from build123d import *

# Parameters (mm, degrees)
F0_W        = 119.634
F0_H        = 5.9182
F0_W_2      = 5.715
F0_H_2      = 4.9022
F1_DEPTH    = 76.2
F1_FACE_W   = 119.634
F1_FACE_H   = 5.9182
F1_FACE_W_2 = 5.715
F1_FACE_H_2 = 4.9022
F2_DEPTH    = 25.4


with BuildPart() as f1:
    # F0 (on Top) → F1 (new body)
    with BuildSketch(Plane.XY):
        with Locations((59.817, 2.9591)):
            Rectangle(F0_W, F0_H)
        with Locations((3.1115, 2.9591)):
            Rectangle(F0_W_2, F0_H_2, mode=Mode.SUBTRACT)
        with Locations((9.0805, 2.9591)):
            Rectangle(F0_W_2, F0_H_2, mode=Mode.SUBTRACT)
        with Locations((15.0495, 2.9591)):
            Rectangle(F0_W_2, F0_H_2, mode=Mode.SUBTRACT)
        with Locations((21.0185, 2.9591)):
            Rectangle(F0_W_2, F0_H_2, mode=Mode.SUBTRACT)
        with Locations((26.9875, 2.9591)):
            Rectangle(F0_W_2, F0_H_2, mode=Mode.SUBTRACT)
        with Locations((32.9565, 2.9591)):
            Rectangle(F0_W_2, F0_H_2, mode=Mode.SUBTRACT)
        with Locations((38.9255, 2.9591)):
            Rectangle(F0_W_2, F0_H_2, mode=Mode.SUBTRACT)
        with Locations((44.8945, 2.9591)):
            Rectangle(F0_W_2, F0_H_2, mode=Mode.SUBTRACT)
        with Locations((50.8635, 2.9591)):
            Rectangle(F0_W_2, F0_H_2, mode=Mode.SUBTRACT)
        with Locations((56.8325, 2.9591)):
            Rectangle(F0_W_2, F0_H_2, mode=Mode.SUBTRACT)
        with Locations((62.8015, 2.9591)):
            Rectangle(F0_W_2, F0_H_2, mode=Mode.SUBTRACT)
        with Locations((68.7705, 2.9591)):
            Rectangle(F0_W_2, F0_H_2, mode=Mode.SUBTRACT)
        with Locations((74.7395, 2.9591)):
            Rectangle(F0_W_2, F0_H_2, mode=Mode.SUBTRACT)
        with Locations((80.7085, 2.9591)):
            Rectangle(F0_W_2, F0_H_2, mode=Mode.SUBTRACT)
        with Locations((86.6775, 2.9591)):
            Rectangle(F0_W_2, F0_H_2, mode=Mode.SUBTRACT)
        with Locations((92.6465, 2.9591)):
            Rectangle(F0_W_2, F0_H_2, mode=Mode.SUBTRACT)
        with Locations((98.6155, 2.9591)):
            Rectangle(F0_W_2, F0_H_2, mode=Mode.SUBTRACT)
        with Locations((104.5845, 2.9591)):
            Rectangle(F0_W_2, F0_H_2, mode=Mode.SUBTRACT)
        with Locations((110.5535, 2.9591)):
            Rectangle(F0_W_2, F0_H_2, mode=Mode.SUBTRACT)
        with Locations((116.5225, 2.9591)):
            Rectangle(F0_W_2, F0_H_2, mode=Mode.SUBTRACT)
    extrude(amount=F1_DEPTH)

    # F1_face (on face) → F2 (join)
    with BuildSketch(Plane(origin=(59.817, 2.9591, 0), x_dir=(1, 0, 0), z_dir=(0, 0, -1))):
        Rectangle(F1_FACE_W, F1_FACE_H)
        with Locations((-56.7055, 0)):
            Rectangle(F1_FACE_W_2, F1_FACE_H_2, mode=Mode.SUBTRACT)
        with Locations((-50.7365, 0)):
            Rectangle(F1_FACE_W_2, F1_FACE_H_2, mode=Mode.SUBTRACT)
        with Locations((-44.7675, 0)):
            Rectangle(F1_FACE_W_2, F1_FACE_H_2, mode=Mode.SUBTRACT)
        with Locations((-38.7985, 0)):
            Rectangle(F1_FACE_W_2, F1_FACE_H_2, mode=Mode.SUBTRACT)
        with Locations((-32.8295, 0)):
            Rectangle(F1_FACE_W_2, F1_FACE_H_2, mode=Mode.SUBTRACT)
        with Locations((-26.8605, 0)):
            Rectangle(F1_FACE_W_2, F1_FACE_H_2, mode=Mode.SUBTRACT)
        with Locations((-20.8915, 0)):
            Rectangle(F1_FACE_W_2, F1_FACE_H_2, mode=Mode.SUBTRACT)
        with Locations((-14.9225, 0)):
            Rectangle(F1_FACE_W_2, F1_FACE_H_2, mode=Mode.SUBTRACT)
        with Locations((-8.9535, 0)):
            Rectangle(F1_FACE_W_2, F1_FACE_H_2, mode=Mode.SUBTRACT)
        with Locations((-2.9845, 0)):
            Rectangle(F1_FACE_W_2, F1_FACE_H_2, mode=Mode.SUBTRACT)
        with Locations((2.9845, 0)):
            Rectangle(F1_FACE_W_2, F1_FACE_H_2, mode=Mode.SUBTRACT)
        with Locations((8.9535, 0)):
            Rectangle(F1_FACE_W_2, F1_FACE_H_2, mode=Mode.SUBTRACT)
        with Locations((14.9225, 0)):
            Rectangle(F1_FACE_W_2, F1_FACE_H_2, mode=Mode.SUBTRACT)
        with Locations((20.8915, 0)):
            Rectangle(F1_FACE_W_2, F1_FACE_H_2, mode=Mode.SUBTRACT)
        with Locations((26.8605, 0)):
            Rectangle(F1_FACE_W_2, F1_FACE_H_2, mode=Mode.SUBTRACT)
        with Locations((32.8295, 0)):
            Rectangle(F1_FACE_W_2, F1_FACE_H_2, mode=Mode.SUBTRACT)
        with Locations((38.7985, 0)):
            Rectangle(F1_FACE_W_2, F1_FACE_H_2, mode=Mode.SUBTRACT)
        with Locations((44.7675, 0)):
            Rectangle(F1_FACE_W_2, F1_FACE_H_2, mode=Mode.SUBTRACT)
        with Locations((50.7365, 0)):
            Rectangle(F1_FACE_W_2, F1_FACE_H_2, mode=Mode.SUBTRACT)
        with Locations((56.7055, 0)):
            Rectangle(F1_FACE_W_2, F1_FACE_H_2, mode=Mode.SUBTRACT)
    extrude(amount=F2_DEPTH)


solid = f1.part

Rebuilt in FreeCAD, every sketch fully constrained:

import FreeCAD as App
import Part
import Sketcher
Q = App.Units.Quantity

doc = App.newDocument("Part")
body = doc.addObject("PartDesign::Body", "Body")

sketch1 = body.newObject("Sketcher::SketchObject", "Sketch")
sketch1.AttachmentSupport = (doc.getObject("XY_Plane"), [""])
sketch1.MapMode = "FlatFace"
sketch1.addGeometry([
    Part.LineSegment(App.Vector(0, 5.9, 0), App.Vector(0, 0, 0)),
    Part.LineSegment(App.Vector(0, 0, 0), App.Vector(119.6, 0, 0)),
    Part.LineSegment(App.Vector(119.6, 0, 0), App.Vector(119.6, 5.9, 0)),
    Part.LineSegment(App.Vector(119.6, 5.9, 0), App.Vector(0, 5.9, 0)),
    Part.LineSegment(App.Vector(6, 0.5, 0), App.Vector(0.3, 0.5, 0)),
    Part.LineSegment(App.Vector(0.3, 0.5, 0), App.Vector(0.3, 5.4, 0)),
    Part.LineSegment(App.Vector(0.3, 5.4, 0), App.Vector(6, 5.4, 0)),
    Part.LineSegment(App.Vector(6, 5.4, 0), App.Vector(6, 0.5, 0)),
    Part.LineSegment(App.Vector(11.9, 0.5, 0), App.Vector(6.2, 0.5, 0)),
    Part.LineSegment(App.Vector(6.2, 0.5, 0), App.Vector(6.2, 5.4, 0)),
    Part.LineSegment(App.Vector(6.2, 5.4, 0), App.Vector(11.9, 5.4, 0)),
    Part.LineSegment(App.Vector(11.9, 5.4, 0), App.Vector(11.9, 0.5, 0)),
    Part.LineSegment(App.Vector(17.9, 0.5, 0), App.Vector(12.2, 0.5, 0)),
    Part.LineSegment(App.Vector(12.2, 0.5, 0), App.Vector(12.2, 5.4, 0)),
    Part.LineSegment(App.Vector(12.2, 5.4, 0), App.Vector(17.9, 5.4, 0)),
    Part.LineSegment(App.Vector(17.9, 5.4, 0), App.Vector(17.9, 0.5, 0)),
    Part.LineSegment(App.Vector(23.9, 0.5, 0), App.Vector(18.2, 0.5, 0)),
    Part.LineSegment(App.Vector(18.2, 0.5, 0), App.Vector(18.2, 5.4, 0)),
    Part.LineSegment(App.Vector(18.2, 5.4, 0), App.Vector(23.9, 5.4, 0)),
    Part.LineSegment(App.Vector(23.9, 5.4, 0), App.Vector(23.9, 0.5, 0)),
    Part.LineSegment(App.Vector(29.8, 0.5, 0), App.Vector(24.1, 0.5, 0)),
    Part.LineSegment(App.Vector(24.1, 0.5, 0), App.Vector(24.1, 5.4, 0)),
    Part.LineSegment(App.Vector(24.1, 5.4, 0), App.Vector(29.8, 5.4, 0)),
    Part.LineSegment(App.Vector(29.8, 5.4, 0), App.Vector(29.8, 0.5, 0)),
    Part.LineSegment(App.Vector(35.8, 0.5, 0), App.Vector(30.1, 0.5, 0)),
    Part.LineSegment(App.Vector(30.1, 0.5, 0), App.Vector(30.1, 5.4, 0)),
    Part.LineSegment(App.Vector(30.1, 5.4, 0), App.Vector(35.8, 5.4, 0)),
    Part.LineSegment(App.Vector(35.8, 5.4, 0), App.Vector(35.8, 0.5, 0)),
    Part.LineSegment(App.Vector(41.8, 0.5, 0), App.Vector(36.1, 0.5, 0)),
    Part.LineSegment(App.Vector(36.1, 0.5, 0), App.Vector(36.1, 5.4, 0)),
    Part.LineSegment(App.Vector(36.1, 5.4, 0), App.Vector(41.8, 5.4, 0)),
    Part.LineSegment(App.Vector(41.8, 5.4, 0), App.Vector(41.8, 0.5, 0)),
    Part.LineSegment(App.Vector(47.8, 0.5, 0), App.Vector(42, 0.5, 0)),
    Part.LineSegment(App.Vector(42, 0.5, 0), App.Vector(42, 5.4, 0)),
    Part.LineSegment(App.Vector(42, 5.4, 0), App.Vector(47.8, 5.4, 0)),
    Part.LineSegment(App.Vector(47.8, 5.4, 0), App.Vector(47.8, 0.5, 0)),
    Part.LineSegment(App.Vector(53.7, 0.5, 0), App.Vector(48, 0.5, 0)),
    Part.LineSegment(App.Vector(48, 0.5, 0), App.Vector(48, 5.4, 0)),
    Part.LineSegment(App.Vector(48, 5.4, 0), App.Vector(53.7, 5.4, 0)),
    Part.LineSegment(App.Vector(53.7, 5.4, 0), App.Vector(53.7, 0.5, 0)),
    Part.LineSegment(App.Vector(59.7, 0.5, 0), App.Vector(54, 0.5, 0)),
    Part.LineSegment(App.Vector(54, 0.5, 0), App.Vector(54, 5.4, 0)),
    Part.LineSegment(App.Vector(54, 5.4, 0), App.Vector(59.7, 5.4, 0)),
    Part.LineSegment(App.Vector(59.7, 5.4, 0), App.Vector(59.7, 0.5, 0)),
    Part.LineSegment(App.Vector(65.7, 0.5, 0), App.Vector(59.9, 0.5, 0)),
    Part.LineSegment(App.Vector(59.9, 0.5, 0), App.Vector(59.9, 5.4, 0)),
    Part.LineSegment(App.Vector(59.9, 5.4, 0), App.Vector(65.7, 5.4, 0)),
    Part.LineSegment(App.Vector(65.7, 5.4, 0), App.Vector(65.7, 0.5, 0)),
    Part.LineSegment(App.Vector(71.6, 0.5, 0), App.Vector(65.9, 0.5, 0)),
    Part.LineSegment(App.Vector(65.9, 0.5, 0), App.Vector(65.9, 5.4, 0)),
    Part.LineSegment(App.Vector(65.9, 5.4, 0), App.Vector(71.6, 5.4, 0)),
    Part.LineSegment(App.Vector(71.6, 5.4, 0), App.Vector(71.6, 0.5, 0)),
    Part.LineSegment(App.Vector(77.6, 0.5, 0), App.Vector(71.9, 0.5, 0)),
    Part.LineSegment(App.Vector(71.9, 0.5, 0), App.Vector(71.9, 5.4, 0)),
    Part.LineSegment(App.Vector(71.9, 5.4, 0), App.Vector(77.6, 5.4, 0)),
    Part.LineSegment(App.Vector(77.6, 5.4, 0), App.Vector(77.6, 0.5, 0)),
    Part.LineSegment(App.Vector(83.6, 0.5, 0), App.Vector(77.9, 0.5, 0)),
    Part.LineSegment(App.Vector(77.9, 0.5, 0), App.Vector(77.9, 5.4, 0)),
    Part.LineSegment(App.Vector(77.9, 5.4, 0), App.Vector(83.6, 5.4, 0)),
    Part.LineSegment(App.Vector(83.6, 5.4, 0), App.Vector(83.6, 0.5, 0)),
    Part.LineSegment(App.Vector(89.5, 0.5, 0), App.Vector(83.8, 0.5, 0)),
    Part.LineSegment(App.Vector(83.8, 0.5, 0), App.Vector(83.8, 5.4, 0)),
    Part.LineSegment(App.Vector(83.8, 5.4, 0), App.Vector(89.5, 5.4, 0)),
    Part.LineSegment(App.Vector(89.5, 5.4, 0), App.Vector(89.5, 0.5, 0)),
    Part.LineSegment(App.Vector(95.5, 0.5, 0), App.Vector(89.8, 0.5, 0)),
    Part.LineSegment(App.Vector(89.8, 0.5, 0), App.Vector(89.8, 5.4, 0)),
    Part.LineSegment(App.Vector(89.8, 5.4, 0), App.Vector(95.5, 5.4, 0)),
    Part.LineSegment(App.Vector(95.5, 5.4, 0), App.Vector(95.5, 0.5, 0)),
    Part.LineSegment(App.Vector(101.5, 0.5, 0), App.Vector(95.8, 0.5, 0)),
    Part.LineSegment(App.Vector(95.8, 0.5, 0), App.Vector(95.8, 5.4, 0)),
    Part.LineSegment(App.Vector(95.8, 5.4, 0), App.Vector(101.5, 5.4, 0)),
    Part.LineSegment(App.Vector(101.5, 5.4, 0), App.Vector(101.5, 0.5, 0)),
    Part.LineSegment(App.Vector(107.4, 0.5, 0), App.Vector(101.7, 0.5, 0)),
    Part.LineSegment(App.Vector(101.7, 0.5, 0), App.Vector(101.7, 5.4, 0)),
    Part.LineSegment(App.Vector(101.7, 5.4, 0), App.Vector(107.4, 5.4, 0)),
    Part.LineSegment(App.Vector(107.4, 5.4, 0), App.Vector(107.4, 0.5, 0)),
    Part.LineSegment(App.Vector(113.4, 0.5, 0), App.Vector(107.7, 0.5, 0)),
    Part.LineSegment(App.Vector(107.7, 0.5, 0), App.Vector(107.7, 5.4, 0)),
    Part.LineSegment(App.Vector(107.7, 5.4, 0), App.Vector(113.4, 5.4, 0)),
    Part.LineSegment(App.Vector(113.4, 5.4, 0), App.Vector(113.4, 0.5, 0)),
    Part.LineSegment(App.Vector(119.4, 0.5, 0), App.Vector(113.7, 0.5, 0)),
    Part.LineSegment(App.Vector(113.7, 0.5, 0), App.Vector(113.7, 5.4, 0)),
    Part.LineSegment(App.Vector(113.7, 5.4, 0), App.Vector(119.4, 5.4, 0)),
    Part.LineSegment(App.Vector(119.4, 5.4, 0), App.Vector(119.4, 0.5, 0)),
], False)
sketch1.addConstraint([
    Sketcher.Constraint("Coincident", 0, 2, 1, 1),
    Sketcher.Constraint("Coincident", 1, 2, 2, 1),
    Sketcher.Constraint("Coincident", 2, 2, 3, 1),
    Sketcher.Constraint("Coincident", 3, 2, 0, 1),
    Sketcher.Constraint("Coincident", 4, 2, 5, 1),
    Sketcher.Constraint("Coincident", 5, 2, 6, 1),
    Sketcher.Constraint("Coincident", 6, 2, 7, 1),
    Sketcher.Constraint("Coincident", 7, 2, 4, 1),
    Sketcher.Constraint("Coincident", 8, 2, 9, 1),
    Sketcher.Constraint("Coincident", 9, 2, 10, 1),
    Sketcher.Constraint("Coincident", 10, 2, 11, 1),
    Sketcher.Constraint("Coincident", 11, 2, 8, 1),
    Sketcher.Constraint("Coincident", 12, 2, 13, 1),
    Sketcher.Constraint("Coincident", 13, 2, 14, 1),
    Sketcher.Constraint("Coincident", 14, 2, 15, 1),
    Sketcher.Constraint("Coincident", 15, 2, 12, 1),
    Sketcher.Constraint("Coincident", 16, 2, 17, 1),
    Sketcher.Constraint("Coincident", 17, 2, 18, 1),
    Sketcher.Constraint("Coincident", 18, 2, 19, 1),
    Sketcher.Constraint("Coincident", 19, 2, 16, 1),
    Sketcher.Constraint("Coincident", 20, 2, 21, 1),
    Sketcher.Constraint("Coincident", 21, 2, 22, 1),
    Sketcher.Constraint("Coincident", 22, 2, 23, 1),
    Sketcher.Constraint("Coincident", 23, 2, 20, 1),
    Sketcher.Constraint("Coincident", 24, 2, 25, 1),
    Sketcher.Constraint("Coincident", 25, 2, 26, 1),
    Sketcher.Constraint("Coincident", 26, 2, 27, 1),
    Sketcher.Constraint("Coincident", 27, 2, 24, 1),
    Sketcher.Constraint("Coincident", 28, 2, 29, 1),
    Sketcher.Constraint("Coincident", 29, 2, 30, 1),
    Sketcher.Constraint("Coincident", 30, 2, 31, 1),
    Sketcher.Constraint("Coincident", 31, 2, 28, 1),
    Sketcher.Constraint("Coincident", 32, 2, 33, 1),
    Sketcher.Constraint("Coincident", 33, 2, 34, 1),
    Sketcher.Constraint("Coincident", 34, 2, 35, 1),
    Sketcher.Constraint("Coincident", 35, 2, 32, 1),
    Sketcher.Constraint("Coincident", 36, 2, 37, 1),
    Sketcher.Constraint("Coincident", 37, 2, 38, 1),
    Sketcher.Constraint("Coincident", 38, 2, 39, 1),
    Sketcher.Constraint("Coincident", 39, 2, 36, 1),
    Sketcher.Constraint("Coincident", 40, 2, 41, 1),
    Sketcher.Constraint("Coincident", 41, 2, 42, 1),
    Sketcher.Constraint("Coincident", 42, 2, 43, 1),
    Sketcher.Constraint("Coincident", 43, 2, 40, 1),
    Sketcher.Constraint("Coincident", 44, 2, 45, 1),
    Sketcher.Constraint("Coincident", 45, 2, 46, 1),
    Sketcher.Constraint("Coincident", 46, 2, 47, 1),
    Sketcher.Constraint("Coincident", 47, 2, 44, 1),
    Sketcher.Constraint("Coincident", 48, 2, 49, 1),
    Sketcher.Constraint("Coincident", 49, 2, 50, 1),
    Sketcher.Constraint("Coincident", 50, 2, 51, 1),
    Sketcher.Constraint("Coincident", 51, 2, 48, 1),
    Sketcher.Constraint("Coincident", 52, 2, 53, 1),
    Sketcher.Constraint("Coincident", 53, 2, 54, 1),
    Sketcher.Constraint("Coincident", 54, 2, 55, 1),
    Sketcher.Constraint("Coincident", 55, 2, 52, 1),
    Sketcher.Constraint("Coincident", 56, 2, 57, 1),
    Sketcher.Constraint("Coincident", 57, 2, 58, 1),
    Sketcher.Constraint("Coincident", 58, 2, 59, 1),
    Sketcher.Constraint("Coincident", 59, 2, 56, 1),
    Sketcher.Constraint("Coincident", 60, 2, 61, 1),
    Sketcher.Constraint("Coincident", 61, 2, 62, 1),
    Sketcher.Constraint("Coincident", 62, 2, 63, 1),
    Sketcher.Constraint("Coincident", 63, 2, 60, 1),
    Sketcher.Constraint("Coincident", 64, 2, 65, 1),
    Sketcher.Constraint("Coincident", 65, 2, 66, 1),
    Sketcher.Constraint("Coincident", 66, 2, 67, 1),
    Sketcher.Constraint("Coincident", 67, 2, 64, 1),
    Sketcher.Constraint("Coincident", 68, 2, 69, 1),
    Sketcher.Constraint("Coincident", 69, 2, 70, 1),
    Sketcher.Constraint("Coincident", 70, 2, 71, 1),
    Sketcher.Constraint("Coincident", 71, 2, 68, 1),
    Sketcher.Constraint("Coincident", 72, 2, 73, 1),
    Sketcher.Constraint("Coincident", 73, 2, 74, 1),
    Sketcher.Constraint("Coincident", 74, 2, 75, 1),
    Sketcher.Constraint("Coincident", 75, 2, 72, 1),
    Sketcher.Constraint("Coincident", 76, 2, 77, 1),
    Sketcher.Constraint("Coincident", 77, 2, 78, 1),
    Sketcher.Constraint("Coincident", 78, 2, 79, 1),
    Sketcher.Constraint("Coincident", 79, 2, 76, 1),
    Sketcher.Constraint("Coincident", 80, 2, 81, 1),
    Sketcher.Constraint("Coincident", 81, 2, 82, 1),
    Sketcher.Constraint("Coincident", 82, 2, 83, 1),
    Sketcher.Constraint("Coincident", 83, 2, 80, 1),
    Sketcher.Constraint("Vertical", 0),
    Sketcher.Constraint("Horizontal", 1),
    Sketcher.Constraint("Vertical", 2),
    Sketcher.Constraint("Horizontal", 3),
    Sketcher.Constraint("Horizontal", 4),
    Sketcher.Constraint("Vertical", 5),
    Sketcher.Constraint("Horizontal", 6),
    Sketcher.Constraint("Vertical", 7),
    Sketcher.Constraint("Horizontal", 8),
    Sketcher.Constraint("Vertical", 9),
    Sketcher.Constraint("Horizontal", 10),
    Sketcher.Constraint("Vertical", 11),
    Sketcher.Constraint("Horizontal", 12),
    Sketcher.Constraint("Vertical", 13),
    Sketcher.Constraint("Horizontal", 14),
    Sketcher.Constraint("Vertical", 15),
    Sketcher.Constraint("Horizontal", 16),
    Sketcher.Constraint("Vertical", 17),
    Sketcher.Constraint("Horizontal", 18),
    Sketcher.Constraint("Vertical", 19),
    Sketcher.Constraint("Horizontal", 20),
    Sketcher.Constraint("Vertical", 21),
    Sketcher.Constraint("Horizontal", 22),
    Sketcher.Constraint("Vertical", 23),
    Sketcher.Constraint("Horizontal", 24),
    Sketcher.Constraint("Vertical", 25),
    Sketcher.Constraint("Horizontal", 26),
    Sketcher.Constraint("Vertical", 27),
    Sketcher.Constraint("Horizontal", 28),
    Sketcher.Constraint("Vertical", 29),
    Sketcher.Constraint("Horizontal", 30),
    Sketcher.Constraint("Vertical", 31),
    Sketcher.Constraint("Horizontal", 32),
    Sketcher.Constraint("Vertical", 33),
    Sketcher.Constraint("Horizontal", 34),
    Sketcher.Constraint("Vertical", 35),
    Sketcher.Constraint("Horizontal", 36),
    Sketcher.Constraint("Vertical", 37),
    Sketcher.Constraint("Horizontal", 38),
    Sketcher.Constraint("Vertical", 39),
    Sketcher.Constraint("Horizontal", 40),
    Sketcher.Constraint("Vertical", 41),
    Sketcher.Constraint("Horizontal", 42),
    Sketcher.Constraint("Vertical", 43),
    Sketcher.Constraint("Horizontal", 44),
    Sketcher.Constraint("Vertical", 45),
    Sketcher.Constraint("Horizontal", 46),
    Sketcher.Constraint("Vertical", 47),
    Sketcher.Constraint("Horizontal", 48),
    Sketcher.Constraint("Vertical", 49),
    Sketcher.Constraint("Horizontal", 50),
    Sketcher.Constraint("Vertical", 51),
    Sketcher.Constraint("Horizontal", 52),
    Sketcher.Constraint("Vertical", 53),
    Sketcher.Constraint("Horizontal", 54),
    Sketcher.Constraint("Vertical", 55),
    Sketcher.Constraint("Horizontal", 56),
    Sketcher.Constraint("Vertical", 57),
    Sketcher.Constraint("Horizontal", 58),
    Sketcher.Constraint("Vertical", 59),
    Sketcher.Constraint("Horizontal", 60),
    Sketcher.Constraint("Vertical", 61),
    Sketcher.Constraint("Horizontal", 62),
    Sketcher.Constraint("Vertical", 63),
    Sketcher.Constraint("Horizontal", 64),
    Sketcher.Constraint("Vertical", 65),
    Sketcher.Constraint("Horizontal", 66),
    Sketcher.Constraint("Vertical", 67),
    Sketcher.Constraint("Horizontal", 68),
    Sketcher.Constraint("Vertical", 69),
    Sketcher.Constraint("Horizontal", 70),
    Sketcher.Constraint("Vertical", 71),
    Sketcher.Constraint("Horizontal", 72),
    Sketcher.Constraint("Vertical", 73),
    Sketcher.Constraint("Horizontal", 74),
    Sketcher.Constraint("Vertical", 75),
    Sketcher.Constraint("Horizontal", 76),
    Sketcher.Constraint("Vertical", 77),
    Sketcher.Constraint("Horizontal", 78),
    Sketcher.Constraint("Vertical", 79),
    Sketcher.Constraint("Horizontal", 80),
    Sketcher.Constraint("Vertical", 81),
    Sketcher.Constraint("Horizontal", 82),
    Sketcher.Constraint("Vertical", 83),
    Sketcher.Constraint("Coincident", 0, 2, -1, 1),
    Sketcher.Constraint("Horizontal", 7, 2, 8, 2),
    Sketcher.Constraint("Horizontal", 6, 2, 9, 2),
    Sketcher.Constraint("Horizontal", 11, 2, 12, 2),
    Sketcher.Constraint("Horizontal", 10, 2, 13, 2),
    Sketcher.Constraint("Horizontal", 15, 2, 16, 2),
    Sketcher.Constraint("Horizontal", 14, 2, 17, 2),
    Sketcher.Constraint("Horizontal", 19, 2, 20, 2),
    Sketcher.Constraint("Horizontal", 18, 2, 21, 2),
    Sketcher.Constraint("Horizontal", 23, 2, 24, 2),
    Sketcher.Constraint("Horizontal", 22, 2, 25, 2),
    Sketcher.Constraint("Horizontal", 27, 2, 28, 2),
    Sketcher.Constraint("Horizontal", 26, 2, 29, 2),
    Sketcher.Constraint("Horizontal", 31, 2, 32, 2),
    Sketcher.Constraint("Horizontal", 30, 2, 33, 2),
    Sketcher.Constraint("Horizontal", 35, 2, 36, 2),
    Sketcher.Constraint("Horizontal", 34, 2, 37, 2),
    Sketcher.Constraint("Horizontal", 39, 2, 40, 2),
    Sketcher.Constraint("Horizontal", 38, 2, 41, 2),
    Sketcher.Constraint("Horizontal", 43, 2, 44, 2),
    Sketcher.Constraint("Horizontal", 42, 2, 45, 2),
    Sketcher.Constraint("Horizontal", 47, 2, 48, 2),
    Sketcher.Constraint("Horizontal", 46, 2, 49, 2),
    Sketcher.Constraint("Horizontal", 51, 2, 52, 2),
    Sketcher.Constraint("Horizontal", 50, 2, 53, 2),
    Sketcher.Constraint("Horizontal", 55, 2, 56, 2),
    Sketcher.Constraint("Horizontal", 54, 2, 57, 2),
    Sketcher.Constraint("Horizontal", 59, 2, 60, 2),
    Sketcher.Constraint("Horizontal", 58, 2, 61, 2),
    Sketcher.Constraint("Horizontal", 63, 2, 64, 2),
    Sketcher.Constraint("Horizontal", 62, 2, 65, 2),
    Sketcher.Constraint("Horizontal", 67, 2, 68, 2),
    Sketcher.Constraint("Horizontal", 66, 2, 69, 2),
    Sketcher.Constraint("Horizontal", 71, 2, 72, 2),
    Sketcher.Constraint("Horizontal", 70, 2, 73, 2),
    Sketcher.Constraint("Horizontal", 75, 2, 76, 2),
    Sketcher.Constraint("Horizontal", 74, 2, 77, 2),
    Sketcher.Constraint("Horizontal", 79, 2, 80, 2),
    Sketcher.Constraint("Horizontal", 78, 2, 81, 2),
    Sketcher.Constraint("Equal", 6, 8),
    Sketcher.Constraint("Equal", 10, 12),
    Sketcher.Constraint("Equal", 14, 16),
    Sketcher.Constraint("Equal", 18, 20),
    Sketcher.Constraint("Equal", 22, 24),
    Sketcher.Constraint("Equal", 26, 28),
    Sketcher.Constraint("Equal", 30, 32),
    Sketcher.Constraint("Equal", 34, 36),
    Sketcher.Constraint("Equal", 38, 40),
    Sketcher.Constraint("Equal", 42, 44),
    Sketcher.Constraint("Equal", 46, 48),
    Sketcher.Constraint("Equal", 50, 52),
    Sketcher.Constraint("Equal", 54, 56),
    Sketcher.Constraint("Equal", 58, 60),
    Sketcher.Constraint("Equal", 62, 64),
    Sketcher.Constraint("Equal", 66, 68),
    Sketcher.Constraint("Equal", 70, 72),
    Sketcher.Constraint("Equal", 74, 76),
    Sketcher.Constraint("Equal", 78, 80),
    Sketcher.Constraint("DistanceX", 1, 1, 1, 2, Q("4.71 in")),
    Sketcher.Constraint("DistanceX", -1, 1, 60, 2, Q("3.3 in")),
    Sketcher.Constraint("DistanceX", -1, 1, 82, 2, Q("4.7 in")),
    Sketcher.Constraint("DistanceX", 4, 2, 4, 1, Q("0.225 in")),
    Sketcher.Constraint("DistanceY", 0, 2, 0, 1, Q("0.233 in")),
    Sketcher.Constraint("DistanceY", 5, 1, 5, 2, Q("0.193 in")),
    Sketcher.Constraint("DistanceX", -1, 1, 4, 2, Q("0.01 in")),
    Sketcher.Constraint("DistanceY", -1, 1, 4, 2, Q("0.02 in")),
    Sketcher.Constraint("DistanceX", -1, 1, 10, 2, Q("0.47 in")),
    Sketcher.Constraint("DistanceX", -1, 1, 12, 2, Q("0.48 in")),
    Sketcher.Constraint("DistanceX", -1, 1, 18, 2, Q("0.94 in")),
    Sketcher.Constraint("DistanceX", -1, 1, 20, 2, Q("0.95 in")),
    Sketcher.Constraint("DistanceX", -1, 1, 26, 2, Q("1.41 in")),
    Sketcher.Constraint("DistanceX", -1, 1, 28, 2, Q("1.42 in")),
    Sketcher.Constraint("DistanceX", -1, 1, 34, 2, Q("1.88 in")),
    Sketcher.Constraint("DistanceX", -1, 1, 36, 2, Q("1.89 in")),
    Sketcher.Constraint("DistanceX", -1, 1, 42, 2, Q("2.35 in")),
    Sketcher.Constraint("DistanceX", -1, 1, 44, 2, Q("2.36 in")),
    Sketcher.Constraint("DistanceX", -1, 1, 50, 2, Q("2.82 in")),
    Sketcher.Constraint("DistanceX", -1, 1, 52, 2, Q("2.83 in")),
    Sketcher.Constraint("DistanceX", -1, 1, 58, 2, Q("3.29 in")),
    Sketcher.Constraint("DistanceX", -1, 1, 66, 2, Q("3.76 in")),
    Sketcher.Constraint("DistanceX", -1, 1, 68, 2, Q("3.77 in")),
    Sketcher.Constraint("DistanceX", -1, 1, 74, 2, Q("4.23 in")),
    Sketcher.Constraint("DistanceX", -1, 1, 76, 2, Q("4.24 in")),
])
pad1 = body.newObject("PartDesign::Pad", "Pad")
pad1.Profile = sketch1
pad1.Length = Q("3 in")

sketch2 = body.newObject("Sketcher::SketchObject", "Sketch001")
sketch2.AttachmentSupport = (doc.getObject("XY_Plane"), [""])
sketch2.MapMode = "FlatFace"
sketch2.addGeometry([
    Part.LineSegment(App.Vector(0, 0, 0), App.Vector(0, 5.9, 0)),
    Part.LineSegment(App.Vector(0, 5.9, 0), App.Vector(119.6, 5.9, 0)),
    Part.LineSegment(App.Vector(119.6, 5.9, 0), App.Vector(119.6, 0, 0)),
    Part.LineSegment(App.Vector(119.6, 0, 0), App.Vector(0, 0, 0)),
    Part.LineSegment(App.Vector(6, 5.4, 0), App.Vector(0.3, 5.4, 0)),
    Part.LineSegment(App.Vector(0.3, 5.4, 0), App.Vector(0.3, 0.5, 0)),
    Part.LineSegment(App.Vector(0.3, 0.5, 0), App.Vector(6, 0.5, 0)),
    Part.LineSegment(App.Vector(6, 0.5, 0), App.Vector(6, 5.4, 0)),
    Part.LineSegment(App.Vector(11.9, 5.4, 0), App.Vector(6.2, 5.4, 0)),
    Part.LineSegment(App.Vector(6.2, 5.4, 0), App.Vector(6.2, 0.5, 0)),
    Part.LineSegment(App.Vector(6.2, 0.5, 0), App.Vector(11.9, 0.5, 0)),
    Part.LineSegment(App.Vector(11.9, 0.5, 0), App.Vector(11.9, 5.4, 0)),
    Part.LineSegment(App.Vector(17.9, 5.4, 0), App.Vector(12.2, 5.4, 0)),
    Part.LineSegment(App.Vector(12.2, 5.4, 0), App.Vector(12.2, 0.5, 0)),
    Part.LineSegment(App.Vector(12.2, 0.5, 0), App.Vector(17.9, 0.5, 0)),
    Part.LineSegment(App.Vector(17.9, 0.5, 0), App.Vector(17.9, 5.4, 0)),
    Part.LineSegment(App.Vector(23.9, 5.4, 0), App.Vector(18.2, 5.4, 0)),
    Part.LineSegment(App.Vector(18.2, 5.4, 0), App.Vector(18.2, 0.5, 0)),
    Part.LineSegment(App.Vector(18.2, 0.5, 0), App.Vector(23.9, 0.5, 0)),
    Part.LineSegment(App.Vector(23.9, 0.5, 0), App.Vector(23.9, 5.4, 0)),
    Part.LineSegment(App.Vector(29.8, 5.4, 0), App.Vector(24.1, 5.4, 0)),
    Part.LineSegment(App.Vector(24.1, 5.4, 0), App.Vector(24.1, 0.5, 0)),
    Part.LineSegment(App.Vector(24.1, 0.5, 0), App.Vector(29.8, 0.5, 0)),
    Part.LineSegment(App.Vector(29.8, 0.5, 0), App.Vector(29.8, 5.4, 0)),
    Part.LineSegment(App.Vector(35.8, 5.4, 0), App.Vector(30.1, 5.4, 0)),
    Part.LineSegment(App.Vector(30.1, 5.4, 0), App.Vector(30.1, 0.5, 0)),
    Part.LineSegment(App.Vector(30.1, 0.5, 0), App.Vector(35.8, 0.5, 0)),
    Part.LineSegment(App.Vector(35.8, 0.5, 0), App.Vector(35.8, 5.4, 0)),
    Part.LineSegment(App.Vector(41.8, 5.4, 0), App.Vector(36.1, 5.4, 0)),
    Part.LineSegment(App.Vector(36.1, 5.4, 0), App.Vector(36.1, 0.5, 0)),
    Part.LineSegment(App.Vector(36.1, 0.5, 0), App.Vector(41.8, 0.5, 0)),
    Part.LineSegment(App.Vector(41.8, 0.5, 0), App.Vector(41.8, 5.4, 0)),
    Part.LineSegment(App.Vector(47.8, 5.4, 0), App.Vector(42, 5.4, 0)),
    Part.LineSegment(App.Vector(42, 5.4, 0), App.Vector(42, 0.5, 0)),
    Part.LineSegment(App.Vector(42, 0.5, 0), App.Vector(47.8, 0.5, 0)),
    Part.LineSegment(App.Vector(47.8, 0.5, 0), App.Vector(47.8, 5.4, 0)),
    Part.LineSegment(App.Vector(53.7, 5.4, 0), App.Vector(48, 5.4, 0)),
    Part.LineSegment(App.Vector(48, 5.4, 0), App.Vector(48, 0.5, 0)),
    Part.LineSegment(App.Vector(48, 0.5, 0), App.Vector(53.7, 0.5, 0)),
    Part.LineSegment(App.Vector(53.7, 0.5, 0), App.Vector(53.7, 5.4, 0)),
    Part.LineSegment(App.Vector(59.7, 5.4, 0), App.Vector(54, 5.4, 0)),
    Part.LineSegment(App.Vector(54, 5.4, 0), App.Vector(54, 0.5, 0)),
    Part.LineSegment(App.Vector(54, 0.5, 0), App.Vector(59.7, 0.5, 0)),
    Part.LineSegment(App.Vector(59.7, 0.5, 0), App.Vector(59.7, 5.4, 0)),
    Part.LineSegment(App.Vector(65.7, 5.4, 0), App.Vector(59.9, 5.4, 0)),
    Part.LineSegment(App.Vector(59.9, 5.4, 0), App.Vector(59.9, 0.5, 0)),
    Part.LineSegment(App.Vector(59.9, 0.5, 0), App.Vector(65.7, 0.5, 0)),
    Part.LineSegment(App.Vector(65.7, 0.5, 0), App.Vector(65.7, 5.4, 0)),
    Part.LineSegment(App.Vector(71.6, 5.4, 0), App.Vector(65.9, 5.4, 0)),
    Part.LineSegment(App.Vector(65.9, 5.4, 0), App.Vector(65.9, 0.5, 0)),
    Part.LineSegment(App.Vector(65.9, 0.5, 0), App.Vector(71.6, 0.5, 0)),
    Part.LineSegment(App.Vector(71.6, 0.5, 0), App.Vector(71.6, 5.4, 0)),
    Part.LineSegment(App.Vector(77.6, 5.4, 0), App.Vector(71.9, 5.4, 0)),
    Part.LineSegment(App.Vector(71.9, 5.4, 0), App.Vector(71.9, 0.5, 0)),
    Part.LineSegment(App.Vector(71.9, 0.5, 0), App.Vector(77.6, 0.5, 0)),
    Part.LineSegment(App.Vector(77.6, 0.5, 0), App.Vector(77.6, 5.4, 0)),
    Part.LineSegment(App.Vector(83.6, 5.4, 0), App.Vector(77.9, 5.4, 0)),
    Part.LineSegment(App.Vector(77.9, 5.4, 0), App.Vector(77.9, 0.5, 0)),
    Part.LineSegment(App.Vector(77.9, 0.5, 0), App.Vector(83.6, 0.5, 0)),
    Part.LineSegment(App.Vector(83.6, 0.5, 0), App.Vector(83.6, 5.4, 0)),
    Part.LineSegment(App.Vector(89.5, 5.4, 0), App.Vector(83.8, 5.4, 0)),
    Part.LineSegment(App.Vector(83.8, 5.4, 0), App.Vector(83.8, 0.5, 0)),
    Part.LineSegment(App.Vector(83.8, 0.5, 0), App.Vector(89.5, 0.5, 0)),
    Part.LineSegment(App.Vector(89.5, 0.5, 0), App.Vector(89.5, 5.4, 0)),
    Part.LineSegment(App.Vector(95.5, 5.4, 0), App.Vector(89.8, 5.4, 0)),
    Part.LineSegment(App.Vector(89.8, 5.4, 0), App.Vector(89.8, 0.5, 0)),
    Part.LineSegment(App.Vector(89.8, 0.5, 0), App.Vector(95.5, 0.5, 0)),
    Part.LineSegment(App.Vector(95.5, 0.5, 0), App.Vector(95.5, 5.4, 0)),
    Part.LineSegment(App.Vector(101.5, 5.4, 0), App.Vector(95.8, 5.4, 0)),
    Part.LineSegment(App.Vector(95.8, 5.4, 0), App.Vector(95.8, 0.5, 0)),
    Part.LineSegment(App.Vector(95.8, 0.5, 0), App.Vector(101.5, 0.5, 0)),
    Part.LineSegment(App.Vector(101.5, 0.5, 0), App.Vector(101.5, 5.4, 0)),
    Part.LineSegment(App.Vector(107.4, 5.4, 0), App.Vector(101.7, 5.4, 0)),
    Part.LineSegment(App.Vector(101.7, 5.4, 0), App.Vector(101.7, 0.5, 0)),
    Part.LineSegment(App.Vector(101.7, 0.5, 0), App.Vector(107.4, 0.5, 0)),
    Part.LineSegment(App.Vector(107.4, 0.5, 0), App.Vector(107.4, 5.4, 0)),
    Part.LineSegment(App.Vector(113.4, 5.4, 0), App.Vector(107.7, 5.4, 0)),
    Part.LineSegment(App.Vector(107.7, 5.4, 0), App.Vector(107.7, 0.5, 0)),
    Part.LineSegment(App.Vector(107.7, 0.5, 0), App.Vector(113.4, 0.5, 0)),
    Part.LineSegment(App.Vector(113.4, 0.5, 0), App.Vector(113.4, 5.4, 0)),
    Part.LineSegment(App.Vector(119.4, 5.4, 0), App.Vector(113.7, 5.4, 0)),
    Part.LineSegment(App.Vector(113.7, 5.4, 0), App.Vector(113.7, 0.5, 0)),
    Part.LineSegment(App.Vector(113.7, 0.5, 0), App.Vector(119.4, 0.5, 0)),
    Part.LineSegment(App.Vector(119.4, 0.5, 0), App.Vector(119.4, 5.4, 0)),
], False)
sketch2.addConstraint([
    Sketcher.Constraint("Coincident", 0, 2, 1, 1),
    Sketcher.Constraint("Coincident", 1, 2, 2, 1),
    Sketcher.Constraint("Coincident", 2, 2, 3, 1),
    Sketcher.Constraint("Coincident", 3, 2, 0, 1),
    Sketcher.Constraint("Coincident", 4, 2, 5, 1),
    Sketcher.Constraint("Coincident", 5, 2, 6, 1),
    Sketcher.Constraint("Coincident", 6, 2, 7, 1),
    Sketcher.Constraint("Coincident", 7, 2, 4, 1),
    Sketcher.Constraint("Coincident", 8, 2, 9, 1),
    Sketcher.Constraint("Coincident", 9, 2, 10, 1),
    Sketcher.Constraint("Coincident", 10, 2, 11, 1),
    Sketcher.Constraint("Coincident", 11, 2, 8, 1),
    Sketcher.Constraint("Coincident", 12, 2, 13, 1),
    Sketcher.Constraint("Coincident", 13, 2, 14, 1),
    Sketcher.Constraint("Coincident", 14, 2, 15, 1),
    Sketcher.Constraint("Coincident", 15, 2, 12, 1),
    Sketcher.Constraint("Coincident", 16, 2, 17, 1),
    Sketcher.Constraint("Coincident", 17, 2, 18, 1),
    Sketcher.Constraint("Coincident", 18, 2, 19, 1),
    Sketcher.Constraint("Coincident", 19, 2, 16, 1),
    Sketcher.Constraint("Coincident", 20, 2, 21, 1),
    Sketcher.Constraint("Coincident", 21, 2, 22, 1),
    Sketcher.Constraint("Coincident", 22, 2, 23, 1),
    Sketcher.Constraint("Coincident", 23, 2, 20, 1),
    Sketcher.Constraint("Coincident", 24, 2, 25, 1),
    Sketcher.Constraint("Coincident", 25, 2, 26, 1),
    Sketcher.Constraint("Coincident", 26, 2, 27, 1),
    Sketcher.Constraint("Coincident", 27, 2, 24, 1),
    Sketcher.Constraint("Coincident", 28, 2, 29, 1),
    Sketcher.Constraint("Coincident", 29, 2, 30, 1),
    Sketcher.Constraint("Coincident", 30, 2, 31, 1),
    Sketcher.Constraint("Coincident", 31, 2, 28, 1),
    Sketcher.Constraint("Coincident", 32, 2, 33, 1),
    Sketcher.Constraint("Coincident", 33, 2, 34, 1),
    Sketcher.Constraint("Coincident", 34, 2, 35, 1),
    Sketcher.Constraint("Coincident", 35, 2, 32, 1),
    Sketcher.Constraint("Coincident", 36, 2, 37, 1),
    Sketcher.Constraint("Coincident", 37, 2, 38, 1),
    Sketcher.Constraint("Coincident", 38, 2, 39, 1),
    Sketcher.Constraint("Coincident", 39, 2, 36, 1),
    Sketcher.Constraint("Coincident", 40, 2, 41, 1),
    Sketcher.Constraint("Coincident", 41, 2, 42, 1),
    Sketcher.Constraint("Coincident", 42, 2, 43, 1),
    Sketcher.Constraint("Coincident", 43, 2, 40, 1),
    Sketcher.Constraint("Coincident", 44, 2, 45, 1),
    Sketcher.Constraint("Coincident", 45, 2, 46, 1),
    Sketcher.Constraint("Coincident", 46, 2, 47, 1),
    Sketcher.Constraint("Coincident", 47, 2, 44, 1),
    Sketcher.Constraint("Coincident", 48, 2, 49, 1),
    Sketcher.Constraint("Coincident", 49, 2, 50, 1),
    Sketcher.Constraint("Coincident", 50, 2, 51, 1),
    Sketcher.Constraint("Coincident", 51, 2, 48, 1),
    Sketcher.Constraint("Coincident", 52, 2, 53, 1),
    Sketcher.Constraint("Coincident", 53, 2, 54, 1),
    Sketcher.Constraint("Coincident", 54, 2, 55, 1),
    Sketcher.Constraint("Coincident", 55, 2, 52, 1),
    Sketcher.Constraint("Coincident", 56, 2, 57, 1),
    Sketcher.Constraint("Coincident", 57, 2, 58, 1),
    Sketcher.Constraint("Coincident", 58, 2, 59, 1),
    Sketcher.Constraint("Coincident", 59, 2, 56, 1),
    Sketcher.Constraint("Coincident", 60, 2, 61, 1),
    Sketcher.Constraint("Coincident", 61, 2, 62, 1),
    Sketcher.Constraint("Coincident", 62, 2, 63, 1),
    Sketcher.Constraint("Coincident", 63, 2, 60, 1),
    Sketcher.Constraint("Coincident", 64, 2, 65, 1),
    Sketcher.Constraint("Coincident", 65, 2, 66, 1),
    Sketcher.Constraint("Coincident", 66, 2, 67, 1),
    Sketcher.Constraint("Coincident", 67, 2, 64, 1),
    Sketcher.Constraint("Coincident", 68, 2, 69, 1),
    Sketcher.Constraint("Coincident", 69, 2, 70, 1),
    Sketcher.Constraint("Coincident", 70, 2, 71, 1),
    Sketcher.Constraint("Coincident", 71, 2, 68, 1),
    Sketcher.Constraint("Coincident", 72, 2, 73, 1),
    Sketcher.Constraint("Coincident", 73, 2, 74, 1),
    Sketcher.Constraint("Coincident", 74, 2, 75, 1),
    Sketcher.Constraint("Coincident", 75, 2, 72, 1),
    Sketcher.Constraint("Coincident", 76, 2, 77, 1),
    Sketcher.Constraint("Coincident", 77, 2, 78, 1),
    Sketcher.Constraint("Coincident", 78, 2, 79, 1),
    Sketcher.Constraint("Coincident", 79, 2, 76, 1),
    Sketcher.Constraint("Coincident", 80, 2, 81, 1),
    Sketcher.Constraint("Coincident", 81, 2, 82, 1),
    Sketcher.Constraint("Coincident", 82, 2, 83, 1),
    Sketcher.Constraint("Coincident", 83, 2, 80, 1),
    Sketcher.Constraint("Vertical", 0),
    Sketcher.Constraint("Horizontal", 1),
    Sketcher.Constraint("Vertical", 2),
    Sketcher.Constraint("Horizontal", 3),
    Sketcher.Constraint("Horizontal", 4),
    Sketcher.Constraint("Vertical", 5),
    Sketcher.Constraint("Horizontal", 6),
    Sketcher.Constraint("Vertical", 7),
    Sketcher.Constraint("Horizontal", 8),
    Sketcher.Constraint("Vertical", 9),
    Sketcher.Constraint("Horizontal", 10),
    Sketcher.Constraint("Vertical", 11),
    Sketcher.Constraint("Horizontal", 12),
    Sketcher.Constraint("Vertical", 13),
    Sketcher.Constraint("Horizontal", 14),
    Sketcher.Constraint("Vertical", 15),
    Sketcher.Constraint("Horizontal", 16),
    Sketcher.Constraint("Vertical", 17),
    Sketcher.Constraint("Horizontal", 18),
    Sketcher.Constraint("Vertical", 19),
    Sketcher.Constraint("Horizontal", 20),
    Sketcher.Constraint("Vertical", 21),
    Sketcher.Constraint("Horizontal", 22),
    Sketcher.Constraint("Vertical", 23),
    Sketcher.Constraint("Horizontal", 24),
    Sketcher.Constraint("Vertical", 25),
    Sketcher.Constraint("Horizontal", 26),
    Sketcher.Constraint("Vertical", 27),
    Sketcher.Constraint("Horizontal", 28),
    Sketcher.Constraint("Vertical", 29),
    Sketcher.Constraint("Horizontal", 30),
    Sketcher.Constraint("Vertical", 31),
    Sketcher.Constraint("Horizontal", 32),
    Sketcher.Constraint("Vertical", 33),
    Sketcher.Constraint("Horizontal", 34),
    Sketcher.Constraint("Vertical", 35),
    Sketcher.Constraint("Horizontal", 36),
    Sketcher.Constraint("Vertical", 37),
    Sketcher.Constraint("Horizontal", 38),
    Sketcher.Constraint("Vertical", 39),
    Sketcher.Constraint("Horizontal", 40),
    Sketcher.Constraint("Vertical", 41),
    Sketcher.Constraint("Horizontal", 42),
    Sketcher.Constraint("Vertical", 43),
    Sketcher.Constraint("Horizontal", 44),
    Sketcher.Constraint("Vertical", 45),
    Sketcher.Constraint("Horizontal", 46),
    Sketcher.Constraint("Vertical", 47),
    Sketcher.Constraint("Horizontal", 48),
    Sketcher.Constraint("Vertical", 49),
    Sketcher.Constraint("Horizontal", 50),
    Sketcher.Constraint("Vertical", 51),
    Sketcher.Constraint("Horizontal", 52),
    Sketcher.Constraint("Vertical", 53),
    Sketcher.Constraint("Horizontal", 54),
    Sketcher.Constraint("Vertical", 55),
    Sketcher.Constraint("Horizontal", 56),
    Sketcher.Constraint("Vertical", 57),
    Sketcher.Constraint("Horizontal", 58),
    Sketcher.Constraint("Vertical", 59),
    Sketcher.Constraint("Horizontal", 60),
    Sketcher.Constraint("Vertical", 61),
    Sketcher.Constraint("Horizontal", 62),
    Sketcher.Constraint("Vertical", 63),
    Sketcher.Constraint("Horizontal", 64),
    Sketcher.Constraint("Vertical", 65),
    Sketcher.Constraint("Horizontal", 66),
    Sketcher.Constraint("Vertical", 67),
    Sketcher.Constraint("Horizontal", 68),
    Sketcher.Constraint("Vertical", 69),
    Sketcher.Constraint("Horizontal", 70),
    Sketcher.Constraint("Vertical", 71),
    Sketcher.Constraint("Horizontal", 72),
    Sketcher.Constraint("Vertical", 73),
    Sketcher.Constraint("Horizontal", 74),
    Sketcher.Constraint("Vertical", 75),
    Sketcher.Constraint("Horizontal", 76),
    Sketcher.Constraint("Vertical", 77),
    Sketcher.Constraint("Horizontal", 78),
    Sketcher.Constraint("Vertical", 79),
    Sketcher.Constraint("Horizontal", 80),
    Sketcher.Constraint("Vertical", 81),
    Sketcher.Constraint("Horizontal", 82),
    Sketcher.Constraint("Vertical", 83),
    Sketcher.Constraint("Coincident", 3, 2, -1, 1),
    Sketcher.Constraint("Horizontal", 7, 2, 8, 2),
    Sketcher.Constraint("Horizontal", 6, 2, 9, 2),
    Sketcher.Constraint("Horizontal", 11, 2, 12, 2),
    Sketcher.Constraint("Horizontal", 10, 2, 13, 2),
    Sketcher.Constraint("Horizontal", 15, 2, 16, 2),
    Sketcher.Constraint("Horizontal", 14, 2, 17, 2),
    Sketcher.Constraint("Horizontal", 19, 2, 20, 2),
    Sketcher.Constraint("Horizontal", 18, 2, 21, 2),
    Sketcher.Constraint("Horizontal", 23, 2, 24, 2),
    Sketcher.Constraint("Horizontal", 22, 2, 25, 2),
    Sketcher.Constraint("Horizontal", 27, 2, 28, 2),
    Sketcher.Constraint("Horizontal", 26, 2, 29, 2),
    Sketcher.Constraint("Horizontal", 31, 2, 32, 2),
    Sketcher.Constraint("Horizontal", 30, 2, 33, 2),
    Sketcher.Constraint("Horizontal", 35, 2, 36, 2),
    Sketcher.Constraint("Horizontal", 34, 2, 37, 2),
    Sketcher.Constraint("Horizontal", 39, 2, 40, 2),
    Sketcher.Constraint("Horizontal", 38, 2, 41, 2),
    Sketcher.Constraint("Horizontal", 43, 2, 44, 2),
    Sketcher.Constraint("Horizontal", 42, 2, 45, 2),
    Sketcher.Constraint("Horizontal", 47, 2, 48, 2),
    Sketcher.Constraint("Horizontal", 46, 2, 49, 2),
    Sketcher.Constraint("Horizontal", 51, 2, 52, 2),
    Sketcher.Constraint("Horizontal", 50, 2, 53, 2),
    Sketcher.Constraint("Horizontal", 55, 2, 56, 2),
    Sketcher.Constraint("Horizontal", 54, 2, 57, 2),
    Sketcher.Constraint("Horizontal", 59, 2, 60, 2),
    Sketcher.Constraint("Horizontal", 58, 2, 61, 2),
    Sketcher.Constraint("Horizontal", 63, 2, 64, 2),
    Sketcher.Constraint("Horizontal", 62, 2, 65, 2),
    Sketcher.Constraint("Horizontal", 67, 2, 68, 2),
    Sketcher.Constraint("Horizontal", 66, 2, 69, 2),
    Sketcher.Constraint("Horizontal", 71, 2, 72, 2),
    Sketcher.Constraint("Horizontal", 70, 2, 73, 2),
    Sketcher.Constraint("Horizontal", 75, 2, 76, 2),
    Sketcher.Constraint("Horizontal", 74, 2, 77, 2),
    Sketcher.Constraint("Horizontal", 79, 2, 80, 2),
    Sketcher.Constraint("Horizontal", 78, 2, 81, 2),
    Sketcher.Constraint("Equal", 6, 8),
    Sketcher.Constraint("Equal", 10, 12),
    Sketcher.Constraint("Equal", 14, 16),
    Sketcher.Constraint("Equal", 18, 20),
    Sketcher.Constraint("Equal", 22, 24),
    Sketcher.Constraint("Equal", 26, 28),
    Sketcher.Constraint("Equal", 30, 32),
    Sketcher.Constraint("Equal", 34, 36),
    Sketcher.Constraint("Equal", 38, 40),
    Sketcher.Constraint("Equal", 42, 44),
    Sketcher.Constraint("Equal", 46, 48),
    Sketcher.Constraint("Equal", 50, 52),
    Sketcher.Constraint("Equal", 54, 56),
    Sketcher.Constraint("Equal", 58, 60),
    Sketcher.Constraint("Equal", 62, 64),
    Sketcher.Constraint("Equal", 66, 68),
    Sketcher.Constraint("Equal", 70, 72),
    Sketcher.Constraint("Equal", 74, 76),
    Sketcher.Constraint("Equal", 78, 80),
    Sketcher.Constraint("DistanceX", 1, 1, 1, 2, Q("4.71 in")),
    Sketcher.Constraint("DistanceX", -1, 1, 60, 2, Q("3.3 in")),
    Sketcher.Constraint("DistanceX", -1, 1, 82, 2, Q("4.7 in")),
    Sketcher.Constraint("DistanceX", 4, 2, 4, 1, Q("0.225 in")),
    Sketcher.Constraint("DistanceY", 0, 1, 0, 2, Q("0.233 in")),
    Sketcher.Constraint("DistanceY", 5, 2, 5, 1, Q("0.193 in")),
    Sketcher.Constraint("DistanceX", -1, 1, 4, 2, Q("0.01 in")),
    Sketcher.Constraint("DistanceY", -1, 1, 5, 2, Q("0.02 in")),
    Sketcher.Constraint("DistanceX", -1, 1, 10, 2, Q("0.47 in")),
    Sketcher.Constraint("DistanceX", -1, 1, 12, 2, Q("0.48 in")),
    Sketcher.Constraint("DistanceX", -1, 1, 18, 2, Q("0.94 in")),
    Sketcher.Constraint("DistanceX", -1, 1, 20, 2, Q("0.95 in")),
    Sketcher.Constraint("DistanceX", -1, 1, 26, 2, Q("1.41 in")),
    Sketcher.Constraint("DistanceX", -1, 1, 28, 2, Q("1.42 in")),
    Sketcher.Constraint("DistanceX", -1, 1, 34, 2, Q("1.88 in")),
    Sketcher.Constraint("DistanceX", -1, 1, 36, 2, Q("1.89 in")),
    Sketcher.Constraint("DistanceX", -1, 1, 42, 2, Q("2.35 in")),
    Sketcher.Constraint("DistanceX", -1, 1, 44, 2, Q("2.36 in")),
    Sketcher.Constraint("DistanceX", -1, 1, 50, 2, Q("2.82 in")),
    Sketcher.Constraint("DistanceX", -1, 1, 52, 2, Q("2.83 in")),
    Sketcher.Constraint("DistanceX", -1, 1, 58, 2, Q("3.29 in")),
    Sketcher.Constraint("DistanceX", -1, 1, 66, 2, Q("3.76 in")),
    Sketcher.Constraint("DistanceX", -1, 1, 68, 2, Q("3.77 in")),
    Sketcher.Constraint("DistanceX", -1, 1, 74, 2, Q("4.23 in")),
    Sketcher.Constraint("DistanceX", -1, 1, 76, 2, Q("4.24 in")),
])
pad2 = body.newObject("PartDesign::Pad", "Pad001")
pad2.Profile = sketch2
pad2.Length = Q("1 in")
pad2.Reversed = True

doc.recompute()
